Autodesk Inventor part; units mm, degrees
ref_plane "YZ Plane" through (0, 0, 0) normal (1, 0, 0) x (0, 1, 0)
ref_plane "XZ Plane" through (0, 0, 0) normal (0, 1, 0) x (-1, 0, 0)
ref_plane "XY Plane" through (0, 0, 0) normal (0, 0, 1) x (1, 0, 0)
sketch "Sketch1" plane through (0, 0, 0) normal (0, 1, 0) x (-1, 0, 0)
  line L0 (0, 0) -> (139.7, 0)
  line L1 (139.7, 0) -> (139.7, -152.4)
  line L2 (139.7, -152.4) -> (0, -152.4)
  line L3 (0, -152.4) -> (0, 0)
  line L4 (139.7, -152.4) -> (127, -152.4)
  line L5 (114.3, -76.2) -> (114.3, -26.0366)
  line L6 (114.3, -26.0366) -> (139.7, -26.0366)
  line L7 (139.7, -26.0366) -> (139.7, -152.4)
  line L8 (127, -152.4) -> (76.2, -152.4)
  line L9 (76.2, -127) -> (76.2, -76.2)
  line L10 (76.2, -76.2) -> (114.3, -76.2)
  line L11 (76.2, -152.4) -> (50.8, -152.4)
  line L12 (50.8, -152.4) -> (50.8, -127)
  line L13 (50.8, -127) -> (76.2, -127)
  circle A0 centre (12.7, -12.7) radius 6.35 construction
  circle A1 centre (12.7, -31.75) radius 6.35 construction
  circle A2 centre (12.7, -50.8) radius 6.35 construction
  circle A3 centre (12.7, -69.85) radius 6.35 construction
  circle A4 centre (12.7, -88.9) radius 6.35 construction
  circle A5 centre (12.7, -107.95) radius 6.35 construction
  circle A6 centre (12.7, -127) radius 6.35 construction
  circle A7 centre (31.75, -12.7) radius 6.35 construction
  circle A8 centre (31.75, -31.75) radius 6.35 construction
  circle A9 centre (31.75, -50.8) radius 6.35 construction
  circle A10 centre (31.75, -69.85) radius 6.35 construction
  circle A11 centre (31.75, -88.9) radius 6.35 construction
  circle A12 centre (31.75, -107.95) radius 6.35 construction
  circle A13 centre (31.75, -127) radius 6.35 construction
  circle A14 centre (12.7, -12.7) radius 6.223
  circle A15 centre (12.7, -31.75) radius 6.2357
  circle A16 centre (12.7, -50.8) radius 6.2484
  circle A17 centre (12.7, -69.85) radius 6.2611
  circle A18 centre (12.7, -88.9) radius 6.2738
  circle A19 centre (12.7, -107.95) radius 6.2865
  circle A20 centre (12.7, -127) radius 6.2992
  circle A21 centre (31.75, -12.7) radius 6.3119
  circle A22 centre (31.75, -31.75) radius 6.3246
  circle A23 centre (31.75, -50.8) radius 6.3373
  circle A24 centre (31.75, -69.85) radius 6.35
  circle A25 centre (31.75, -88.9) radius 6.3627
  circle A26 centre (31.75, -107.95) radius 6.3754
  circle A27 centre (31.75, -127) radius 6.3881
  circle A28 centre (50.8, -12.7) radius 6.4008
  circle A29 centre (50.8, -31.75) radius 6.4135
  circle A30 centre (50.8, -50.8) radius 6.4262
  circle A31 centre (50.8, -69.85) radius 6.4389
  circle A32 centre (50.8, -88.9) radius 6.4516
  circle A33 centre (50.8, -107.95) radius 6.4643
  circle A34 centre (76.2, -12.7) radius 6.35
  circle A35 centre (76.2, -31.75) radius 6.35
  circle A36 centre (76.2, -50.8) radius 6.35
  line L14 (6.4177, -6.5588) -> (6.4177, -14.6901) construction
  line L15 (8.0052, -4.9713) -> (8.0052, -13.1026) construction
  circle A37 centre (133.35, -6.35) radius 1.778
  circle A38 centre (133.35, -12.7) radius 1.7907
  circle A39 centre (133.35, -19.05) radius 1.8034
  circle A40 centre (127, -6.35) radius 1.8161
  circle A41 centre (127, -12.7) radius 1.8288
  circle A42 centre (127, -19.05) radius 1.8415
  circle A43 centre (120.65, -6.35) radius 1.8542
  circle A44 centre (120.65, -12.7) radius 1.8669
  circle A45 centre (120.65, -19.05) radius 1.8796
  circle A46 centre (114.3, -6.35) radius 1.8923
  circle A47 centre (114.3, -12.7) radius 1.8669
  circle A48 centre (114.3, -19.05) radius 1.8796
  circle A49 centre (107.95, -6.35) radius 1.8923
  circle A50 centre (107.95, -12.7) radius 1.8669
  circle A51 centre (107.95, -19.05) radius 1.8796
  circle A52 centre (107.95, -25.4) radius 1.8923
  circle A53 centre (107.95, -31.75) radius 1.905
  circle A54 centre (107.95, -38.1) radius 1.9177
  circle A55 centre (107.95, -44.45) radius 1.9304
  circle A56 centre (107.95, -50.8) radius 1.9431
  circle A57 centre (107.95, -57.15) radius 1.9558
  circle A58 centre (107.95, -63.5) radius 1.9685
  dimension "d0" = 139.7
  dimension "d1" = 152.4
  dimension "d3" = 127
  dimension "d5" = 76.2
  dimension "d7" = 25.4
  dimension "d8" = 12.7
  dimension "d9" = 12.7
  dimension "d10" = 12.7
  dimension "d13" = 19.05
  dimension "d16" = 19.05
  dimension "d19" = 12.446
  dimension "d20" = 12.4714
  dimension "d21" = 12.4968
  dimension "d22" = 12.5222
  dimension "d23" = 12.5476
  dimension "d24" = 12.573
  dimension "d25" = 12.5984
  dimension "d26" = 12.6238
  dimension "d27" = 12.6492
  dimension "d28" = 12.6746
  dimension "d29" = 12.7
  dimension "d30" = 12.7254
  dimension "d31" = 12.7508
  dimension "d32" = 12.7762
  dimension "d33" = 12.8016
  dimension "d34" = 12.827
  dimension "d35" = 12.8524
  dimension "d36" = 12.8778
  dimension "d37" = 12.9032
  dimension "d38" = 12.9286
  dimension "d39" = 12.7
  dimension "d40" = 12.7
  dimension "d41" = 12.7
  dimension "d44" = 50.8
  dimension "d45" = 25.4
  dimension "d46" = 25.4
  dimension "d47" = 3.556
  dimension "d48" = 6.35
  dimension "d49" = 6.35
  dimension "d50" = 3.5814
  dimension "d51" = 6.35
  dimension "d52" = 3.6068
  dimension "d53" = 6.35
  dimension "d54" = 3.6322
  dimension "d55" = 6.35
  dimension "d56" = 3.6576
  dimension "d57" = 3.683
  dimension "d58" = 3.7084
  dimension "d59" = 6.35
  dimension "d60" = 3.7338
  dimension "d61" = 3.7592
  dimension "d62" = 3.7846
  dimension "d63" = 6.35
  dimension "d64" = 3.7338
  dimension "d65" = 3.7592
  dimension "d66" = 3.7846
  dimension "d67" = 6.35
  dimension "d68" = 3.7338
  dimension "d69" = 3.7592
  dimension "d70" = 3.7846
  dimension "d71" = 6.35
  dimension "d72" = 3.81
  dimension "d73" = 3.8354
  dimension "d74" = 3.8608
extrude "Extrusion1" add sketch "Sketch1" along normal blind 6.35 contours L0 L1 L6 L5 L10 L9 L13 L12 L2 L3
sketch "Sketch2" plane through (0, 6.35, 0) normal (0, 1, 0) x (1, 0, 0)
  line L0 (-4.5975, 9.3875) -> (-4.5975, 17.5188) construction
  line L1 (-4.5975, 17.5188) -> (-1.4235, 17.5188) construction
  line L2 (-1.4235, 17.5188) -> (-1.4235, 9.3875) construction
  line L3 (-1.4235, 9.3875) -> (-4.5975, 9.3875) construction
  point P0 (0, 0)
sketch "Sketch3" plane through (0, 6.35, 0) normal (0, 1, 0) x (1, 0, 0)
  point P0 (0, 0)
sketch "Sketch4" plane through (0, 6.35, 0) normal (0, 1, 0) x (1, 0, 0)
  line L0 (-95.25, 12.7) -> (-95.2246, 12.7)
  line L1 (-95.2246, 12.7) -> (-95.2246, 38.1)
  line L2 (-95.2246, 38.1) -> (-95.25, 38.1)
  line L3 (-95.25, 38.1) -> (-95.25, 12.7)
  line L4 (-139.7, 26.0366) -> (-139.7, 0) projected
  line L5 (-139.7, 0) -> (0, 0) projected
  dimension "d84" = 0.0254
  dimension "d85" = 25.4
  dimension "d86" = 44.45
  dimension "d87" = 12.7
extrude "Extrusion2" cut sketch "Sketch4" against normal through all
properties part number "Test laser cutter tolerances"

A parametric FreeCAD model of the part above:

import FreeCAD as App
import Part
import Sketcher
Q = App.Units.Quantity

doc = App.newDocument("Part")
body = doc.addObject("PartDesign::Body", "Body")

sketch1 = doc.addObject("Sketcher::SketchObject", "Sketch")
body.addObject(sketch1)
sketch1.AttachmentSupport = (doc.XZ_Plane, [""])
sketch1.MapMode = "FlatFace"
sketch1.addGeometry(Part.LineSegment(App.Vector(-139.7, 0, 0), App.Vector(0, 0, 0)), False)
sketch1.addGeometry(Part.LineSegment(App.Vector(0, 0, 0), App.Vector(0, -152.4, 0)), False)
sketch1.addGeometry(Part.LineSegment(App.Vector(0, -152.4, 0), App.Vector(-50.8, -152.4, 0)), False)
sketch1.addGeometry(Part.LineSegment(App.Vector(-50.8, -152.4, 0), App.Vector(-50.8, -127, 0)), False)
sketch1.addGeometry(Part.LineSegment(App.Vector(-50.8, -127, 0), App.Vector(-76.2, -127, 0)), False)
sketch1.addGeometry(Part.LineSegment(App.Vector(-76.2, -127, 0), App.Vector(-76.2, -76.2, 0)), False)
sketch1.addGeometry(Part.LineSegment(App.Vector(-76.2, -76.2, 0), App.Vector(-114.3, -76.2, 0)), False)
sketch1.addGeometry(Part.LineSegment(App.Vector(-114.3, -76.2, 0), App.Vector(-114.3, -26, 0)), False)
sketch1.addGeometry(Part.LineSegment(App.Vector(-114.3, -26, 0), App.Vector(-139.7, -26, 0)), False)
sketch1.addGeometry(Part.LineSegment(App.Vector(-139.7, -26, 0), App.Vector(-139.7, 0, 0)), False)
sketch1.addGeometry(Part.Circle(App.Vector(-12.7, -127, 0), App.Vector(0, 0, 1), 6.3), False)
sketch1.addGeometry(Part.Circle(App.Vector(-31.8, -127, 0), App.Vector(0, 0, 1), 6.4), False)
sketch1.addGeometry(Part.Circle(App.Vector(-12.7, -108, 0), App.Vector(0, 0, 1), 6.3), False)
sketch1.addGeometry(Part.Circle(App.Vector(-31.8, -108, 0), App.Vector(0, 0, 1), 6.4), False)
sketch1.addGeometry(Part.Circle(App.Vector(-12.7, -88.9, 0), App.Vector(0, 0, 1), 6.3), False)
sketch1.addGeometry(Part.Circle(App.Vector(-31.8, -88.9, 0), App.Vector(0, 0, 1), 6.4), False)
sketch1.addGeometry(Part.Circle(App.Vector(-50.8, -108, 0), App.Vector(0, 0, 1), 6.5), False)
sketch1.addGeometry(Part.Circle(App.Vector(-50.8, -88.9, 0), App.Vector(0, 0, 1), 6.5), False)
sketch1.addGeometry(Part.Circle(App.Vector(-12.7, -69.8, 0), App.Vector(0, 0, 1), 6.3), False)
sketch1.addGeometry(Part.Circle(App.Vector(-31.8, -69.8, 0), App.Vector(0, 0, 1), 6.3), False)
sketch1.addGeometry(Part.Circle(App.Vector(-12.7, -50.8, 0), App.Vector(0, 0, 1), 6.2), False)
sketch1.addGeometry(Part.Circle(App.Vector(-31.8, -50.8, 0), App.Vector(0, 0, 1), 6.3), False)
sketch1.addGeometry(Part.Circle(App.Vector(-50.8, -69.8, 0), App.Vector(0, 0, 1), 6.4), False)
sketch1.addGeometry(Part.Circle(App.Vector(-50.8, -50.8, 0), App.Vector(0, 0, 1), 6.4), False)
sketch1.addGeometry(Part.Circle(App.Vector(-12.7, -31.8, 0), App.Vector(0, 0, 1), 6.2), False)
sketch1.addGeometry(Part.Circle(App.Vector(-31.8, -31.8, 0), App.Vector(0, 0, 1), 6.3), False)
sketch1.addGeometry(Part.Circle(App.Vector(-12.7, -12.7, 0), App.Vector(0, 0, 1), 6.2), False)
sketch1.addGeometry(Part.Circle(App.Vector(-31.8, -12.7, 0), App.Vector(0, 0, 1), 6.3), False)
sketch1.addGeometry(Part.Circle(App.Vector(-50.8, -31.8, 0), App.Vector(0, 0, 1), 6.4), False)
sketch1.addGeometry(Part.Circle(App.Vector(-50.8, -12.7, 0), App.Vector(0, 0, 1), 6.4), False)
sketch1.addGeometry(Part.Circle(App.Vector(-76.2, -50.8, 0), App.Vector(0, 0, 1), 6.3), False)
sketch1.addGeometry(Part.Circle(App.Vector(-108, -63.5, 0), App.Vector(0, 0, 1), 2), False)
sketch1.addGeometry(Part.Circle(App.Vector(-108, -57.1, 0), App.Vector(0, 0, 1), 2), False)
sketch1.addGeometry(Part.Circle(App.Vector(-108, -50.8, 0), App.Vector(0, 0, 1), 1.9), False)
sketch1.addGeometry(Part.Circle(App.Vector(-108, -44.5, 0), App.Vector(0, 0, 1), 1.9), False)
sketch1.addGeometry(Part.Circle(App.Vector(-76.2, -31.8, 0), App.Vector(0, 0, 1), 6.3), False)
sketch1.addGeometry(Part.Circle(App.Vector(-76.2, -12.7, 0), App.Vector(0, 0, 1), 6.3), False)
sketch1.addGeometry(Part.Circle(App.Vector(-108, -38.1, 0), App.Vector(0, 0, 1), 1.9), False)
sketch1.addGeometry(Part.Circle(App.Vector(-108, -31.8, 0), App.Vector(0, 0, 1), 1.9), False)
sketch1.addGeometry(Part.Circle(App.Vector(-108, -25.4, 0), App.Vector(0, 0, 1), 1.9), False)
sketch1.addGeometry(Part.Circle(App.Vector(-108, -19.1, 0), App.Vector(0, 0, 1), 1.9), False)
sketch1.addGeometry(Part.Circle(App.Vector(-108, -12.7, 0), App.Vector(0, 0, 1), 1.9), False)
sketch1.addGeometry(Part.Circle(App.Vector(-114.3, -19.1, 0), App.Vector(0, 0, 1), 1.9), False)
sketch1.addGeometry(Part.Circle(App.Vector(-120.7, -19.1, 0), App.Vector(0, 0, 1), 1.9), False)
sketch1.addGeometry(Part.Circle(App.Vector(-114.3, -12.7, 0), App.Vector(0, 0, 1), 1.9), False)
sketch1.addGeometry(Part.Circle(App.Vector(-120.7, -12.7, 0), App.Vector(0, 0, 1), 1.9), False)
sketch1.addGeometry(Part.Circle(App.Vector(-108, -6.3, 0), App.Vector(0, 0, 1), 1.9), False)
sketch1.addGeometry(Part.Circle(App.Vector(-114.3, -6.3, 0), App.Vector(0, 0, 1), 1.9), False)
sketch1.addGeometry(Part.Circle(App.Vector(-120.7, -6.3, 0), App.Vector(0, 0, 1), 1.9), False)
sketch1.addGeometry(Part.Circle(App.Vector(-127, -19.1, 0), App.Vector(0, 0, 1), 1.8), False)
sketch1.addGeometry(Part.Circle(App.Vector(-127, -12.7, 0), App.Vector(0, 0, 1), 1.8), False)
sketch1.addGeometry(Part.Circle(App.Vector(-133.3, -19.1, 0), App.Vector(0, 0, 1), 1.8), False)
sketch1.addGeometry(Part.Circle(App.Vector(-133.3, -12.7, 0), App.Vector(0, 0, 1), 1.8), False)
sketch1.addGeometry(Part.Circle(App.Vector(-127, -6.3, 0), App.Vector(0, 0, 1), 1.8), False)
sketch1.addGeometry(Part.Circle(App.Vector(-133.3, -6.3, 0), App.Vector(0, 0, 1), 1.8), False)
sketch1.addConstraint(Sketcher.Constraint("Coincident", 0, 2, 1, 1))
sketch1.addConstraint(Sketcher.Constraint("Coincident", 1, 2, 2, 1))
sketch1.addConstraint(Sketcher.Constraint("Coincident", 2, 2, 3, 1))
sketch1.addConstraint(Sketcher.Constraint("Coincident", 3, 2, 4, 1))
sketch1.addConstraint(Sketcher.Constraint("Coincident", 4, 2, 5, 1))
sketch1.addConstraint(Sketcher.Constraint("Coincident", 5, 2, 6, 1))
sketch1.addConstraint(Sketcher.Constraint("Coincident", 6, 2, 7, 1))
sketch1.addConstraint(Sketcher.Constraint("Coincident", 7, 2, 8, 1))
sketch1.addConstraint(Sketcher.Constraint("Coincident", 8, 2, 9, 1))
sketch1.addConstraint(Sketcher.Constraint("Coincident", 9, 2, 0, 1))
sketch1.addConstraint(Sketcher.Constraint("Horizontal", 0))
sketch1.addConstraint(Sketcher.Constraint("Vertical", 1))
sketch1.addConstraint(Sketcher.Constraint("Horizontal", 2))
sketch1.addConstraint(Sketcher.Constraint("Vertical", 3))
sketch1.addConstraint(Sketcher.Constraint("Horizontal", 4))
sketch1.addConstraint(Sketcher.Constraint("Vertical", 5))
sketch1.addConstraint(Sketcher.Constraint("Horizontal", 6))
sketch1.addConstraint(Sketcher.Constraint("Vertical", 7))
sketch1.addConstraint(Sketcher.Constraint("Horizontal", 8))
sketch1.addConstraint(Sketcher.Constraint("Vertical", 9))
sketch1.addConstraint(Sketcher.Constraint("Coincident", 0, 2, -1, 1))
sketch1.addConstraint(Sketcher.Constraint("Equal", 19, 30))
sketch1.addConstraint(Sketcher.Constraint("Equal", 30, 35))
sketch1.addConstraint(Sketcher.Constraint("Equal", 35, 36))
sketch1.addConstraint(Sketcher.Constraint("Equal", 40, 42))
sketch1.addConstraint(Sketcher.Constraint("Equal", 42, 43))
sketch1.addConstraint(Sketcher.Constraint("Equal", 41, 44))
sketch1.addConstraint(Sketcher.Constraint("Equal", 44, 45))
sketch1.addConstraint(Sketcher.Constraint("Equal", 39, 46))
sketch1.addConstraint(Sketcher.Constraint("Equal", 46, 47))
sketch1.addConstraint(Sketcher.Constraint("Horizontal", 10, 3, 11, 3))
sketch1.addConstraint(Sketcher.Constraint("Horizontal", 12, 3, 13, 3))
sketch1.addConstraint(Sketcher.Constraint("Horizontal", 14, 3, 15, 3))
sketch1.addConstraint(Sketcher.Constraint("Horizontal", 13, 3, 16, 3))
sketch1.addConstraint(Sketcher.Constraint("Horizontal", 15, 3, 17, 3))
sketch1.addConstraint(Sketcher.Constraint("Horizontal", 18, 3, 19, 3))
sketch1.addConstraint(Sketcher.Constraint("Horizontal", 20, 3, 21, 3))
sketch1.addConstraint(Sketcher.Constraint("Horizontal", 19, 3, 22, 3))
sketch1.addConstraint(Sketcher.Constraint("Horizontal", 21, 3, 23, 3))
sketch1.addConstraint(Sketcher.Constraint("Horizontal", 24, 3, 25, 3))
sketch1.addConstraint(Sketcher.Constraint("Horizontal", 26, 3, 27, 3))
sketch1.addConstraint(Sketcher.Constraint("Horizontal", 25, 3, 28, 3))
sketch1.addConstraint(Sketcher.Constraint("Horizontal", 27, 3, 29, 3))
sketch1.addConstraint(Sketcher.Constraint("Horizontal", 23, 3, 30, 3))
sketch1.addConstraint(Sketcher.Constraint("Horizontal", 30, 3, 33, 3))
sketch1.addConstraint(Sketcher.Constraint("Horizontal", 28, 3, 35, 3))
sketch1.addConstraint(Sketcher.Constraint("Horizontal", 29, 3, 36, 3))
sketch1.addConstraint(Sketcher.Constraint("Horizontal", 35, 3, 38, 3))
sketch1.addConstraint(Sketcher.Constraint("Horizontal", 36, 3, 41, 3))
sketch1.addConstraint(Sketcher.Constraint("Horizontal", 40, 3, 42, 3))
sketch1.addConstraint(Sketcher.Constraint("Horizontal", 42, 3, 43, 3))
sketch1.addConstraint(Sketcher.Constraint("Horizontal", 41, 3, 44, 3))
sketch1.addConstraint(Sketcher.Constraint("Horizontal", 44, 3, 45, 3))
sketch1.addConstraint(Sketcher.Constraint("Horizontal", 46, 3, 47, 3))
sketch1.addConstraint(Sketcher.Constraint("Horizontal", 47, 3, 48, 3))
sketch1.addConstraint(Sketcher.Constraint("Horizontal", 43, 3, 49, 3))
sketch1.addConstraint(Sketcher.Constraint("Horizontal", 45, 3, 50, 3))
sketch1.addConstraint(Sketcher.Constraint("Horizontal", 49, 3, 51, 3))
sketch1.addConstraint(Sketcher.Constraint("Horizontal", 50, 3, 52, 3))
sketch1.addConstraint(Sketcher.Constraint("Horizontal", 48, 3, 53, 3))
sketch1.addConstraint(Sketcher.Constraint("Horizontal", 53, 3, 54, 3))
sketch1.addConstraint(Sketcher.Constraint("Horizontal", 11, 3, 3, 2))
sketch1.addConstraint(Sketcher.Constraint("Vertical", 10, 3, 12, 3))
sketch1.addConstraint(Sketcher.Constraint("Vertical", 11, 3, 13, 3))
sketch1.addConstraint(Sketcher.Constraint("Vertical", 12, 3, 14, 3))
sketch1.addConstraint(Sketcher.Constraint("Vertical", 13, 3, 15, 3))
sketch1.addConstraint(Sketcher.Constraint("Vertical", 16, 3, 17, 3))
sketch1.addConstraint(Sketcher.Constraint("Vertical", 14, 3, 18, 3))
sketch1.addConstraint(Sketcher.Constraint("Vertical", 15, 3, 19, 3))
sketch1.addConstraint(Sketcher.Constraint("Vertical", 18, 3, 20, 3))
sketch1.addConstraint(Sketcher.Constraint("Vertical", 19, 3, 21, 3))
sketch1.addConstraint(Sketcher.Constraint("Vertical", 17, 3, 22, 3))
sketch1.addConstraint(Sketcher.Constraint("Vertical", 22, 3, 23, 3))
sketch1.addConstraint(Sketcher.Constraint("Vertical", 20, 3, 24, 3))
sketch1.addConstraint(Sketcher.Constraint("Vertical", 21, 3, 25, 3))
sketch1.addConstraint(Sketcher.Constraint("Vertical", 24, 3, 26, 3))
sketch1.addConstraint(Sketcher.Constraint("Vertical", 25, 3, 27, 3))
sketch1.addConstraint(Sketcher.Constraint("Vertical", 23, 3, 28, 3))
sketch1.addConstraint(Sketcher.Constraint("Vertical", 28, 3, 29, 3))
sketch1.addConstraint(Sketcher.Constraint("Vertical", 31, 3, 32, 3))
sketch1.addConstraint(Sketcher.Constraint("Vertical", 32, 3, 33, 3))
sketch1.addConstraint(Sketcher.Constraint("Vertical", 33, 3, 34, 3))
sketch1.addConstraint(Sketcher.Constraint("Vertical", 30, 3, 35, 3))
sketch1.addConstraint(Sketcher.Constraint("Vertical", 35, 3, 36, 3))
sketch1.addConstraint(Sketcher.Constraint("Vertical", 34, 3, 37, 3))
sketch1.addConstraint(Sketcher.Constraint("Vertical", 37, 3, 38, 3))
sketch1.addConstraint(Sketcher.Constraint("Vertical", 38, 3, 39, 3))
sketch1.addConstraint(Sketcher.Constraint("Vertical", 39, 3, 40, 3))
sketch1.addConstraint(Sketcher.Constraint("Vertical", 40, 3, 41, 3))
sketch1.addConstraint(Sketcher.Constraint("Vertical", 42, 3, 44, 3))
sketch1.addConstraint(Sketcher.Constraint("Vertical", 43, 3, 45, 3))
sketch1.addConstraint(Sketcher.Constraint("Vertical", 41, 3, 46, 3))
sketch1.addConstraint(Sketcher.Constraint("Vertical", 44, 3, 47, 3))
sketch1.addConstraint(Sketcher.Constraint("Vertical", 45, 3, 48, 3))
sketch1.addConstraint(Sketcher.Constraint("Vertical", 49, 3, 50, 3))
sketch1.addConstraint(Sketcher.Constraint("Vertical", 51, 3, 52, 3))
sketch1.addConstraint(Sketcher.Constraint("Vertical", 50, 3, 53, 3))
sketch1.addConstraint(Sketcher.Constraint("Vertical", 52, 3, 54, 3))
sketch1.addConstraint(Sketcher.Constraint("Vertical", 29, 3, 2, 2))
sketch1.addConstraint(Sketcher.Constraint("Vertical", 36, 3, 4, 2))
sketch1.addConstraint(Sketcher.Constraint("Vertical", 47, 3, 6, 2))
sketch1.addConstraint(Sketcher.Constraint("Equal", 4, 8))
sketch1.addConstraint(Sketcher.Constraint("Equal", 8, 3))
sketch1.addConstraint(Sketcher.Constraint("Equal", 2, 5))
sketch1.addConstraint(Sketcher.Constraint("Diameter", 19, Q("0.5 in")))
sketch1.addConstraint(Sketcher.Constraint("Diameter", 26, Q("0.49 in")))
sketch1.addConstraint(Sketcher.Constraint("Diameter", 38, Q("0.15 in")))
sketch1.addConstraint(Sketcher.Constraint("Diameter", 54, Q("0.14 in")))
sketch1.addConstraint(Sketcher.Constraint("DistanceX", 2, 2, 2, 1, Q("2 in")))
sketch1.addConstraint(Sketcher.Constraint("DistanceX", 4, 2, 4, 1, Q("1 in")))
sketch1.addConstraint(Sketcher.Constraint("DistanceY", 1, 2, 1, 1, Q("6 in")))
sketch1.addConstraint(Sketcher.Constraint("Diameter", 10, Q("0.496 in")))
sketch1.addConstraint(Sketcher.Constraint("Diameter", 11, Q("0.503 in")))
sketch1.addConstraint(Sketcher.Constraint("Diameter", 12, Q("0.495 in")))
sketch1.addConstraint(Sketcher.Constraint("Diameter", 13, Q("0.502 in")))
sketch1.addConstraint(Sketcher.Constraint("Diameter", 14, Q("0.494 in")))
sketch1.addConstraint(Sketcher.Constraint("Diameter", 15, Q("0.501 in")))
sketch1.addConstraint(Sketcher.Constraint("Diameter", 16, Q("0.509 in")))
sketch1.addConstraint(Sketcher.Constraint("Diameter", 17, Q("0.508 in")))
sketch1.addConstraint(Sketcher.Constraint("Diameter", 18, Q("0.493 in")))
sketch1.addConstraint(Sketcher.Constraint("Diameter", 20, Q("0.492 in")))
sketch1.addConstraint(Sketcher.Constraint("Diameter", 21, Q("0.499 in")))
sketch1.addConstraint(Sketcher.Constraint("Diameter", 22, Q("0.507 in")))
sketch1.addConstraint(Sketcher.Constraint("Diameter", 23, Q("0.506 in")))
sketch1.addConstraint(Sketcher.Constraint("Diameter", 24, Q("0.491 in")))
sketch1.addConstraint(Sketcher.Constraint("Diameter", 25, Q("0.498 in")))
sketch1.addConstraint(Sketcher.Constraint("Diameter", 27, Q("0.497 in")))
sketch1.addConstraint(Sketcher.Constraint("Diameter", 28, Q("0.505 in")))
sketch1.addConstraint(Sketcher.Constraint("Diameter", 29, Q("0.504 in")))
sketch1.addConstraint(Sketcher.Constraint("Diameter", 34, Q("0.152 in")))
sketch1.addConstraint(Sketcher.Constraint("Diameter", 37, Q("0.151 in")))
sketch1.addConstraint(Sketcher.Constraint("Diameter", 39, Q("0.149 in")))
sketch1.addConstraint(Sketcher.Constraint("Diameter", 40, Q("0.148 in")))
sketch1.addConstraint(Sketcher.Constraint("Diameter", 41, Q("0.147 in")))
sketch1.addConstraint(Sketcher.Constraint("Diameter", 48, Q("0.146 in")))
sketch1.addConstraint(Sketcher.Constraint("Diameter", 49, Q("0.145 in")))
sketch1.addConstraint(Sketcher.Constraint("Diameter", 50, Q("0.144 in")))
sketch1.addConstraint(Sketcher.Constraint("Diameter", 51, Q("0.142 in")))
sketch1.addConstraint(Sketcher.Constraint("Diameter", 52, Q("0.141 in")))
sketch1.addConstraint(Sketcher.Constraint("Diameter", 53, Q("0.143 in")))
sketch1.addConstraint(Sketcher.Constraint("DistanceX", 0, 1, 0, 2, Q("5.5 in")))
sketch1.addConstraint(Sketcher.Constraint("DistanceY", 20, 3, -1, 1, Q("2 in")))
sketch1.addConstraint(Sketcher.Constraint("DistanceY", 39, 3, -1, 1, Q("1 in")))
sketch1.addConstraint(Sketcher.Constraint("DistanceX", 49, 3, -1, 1, Q("5 in")))
sketch1.addConstraint(Sketcher.Constraint("DistanceY", 17, 3, 31, 3, Q("1 in")))
sketch1.addConstraint(Sketcher.Constraint("DistanceY", 32, 3, 28, 3, Q("1 in")))
sketch1.addConstraint(Sketcher.Constraint("DistanceY", 31, 3, 37, 3, Q("1 in")))
sketch1.addConstraint(Sketcher.Constraint("DistanceY", 34, 3, 40, 3, Q("1 in")))
sketch1.addConstraint(Sketcher.Constraint("DistanceY", 37, 3, 41, 3, Q("1 in")))
sketch1.addConstraint(Sketcher.Constraint("DistanceX", 10, 3, -1, 1, Q("0.5 in")))
sketch1.addConstraint(Sketcher.Constraint("DistanceY", 26, 3, -1, 1, Q("0.5 in")))
sketch1.addConstraint(Sketcher.Constraint("DistanceY", 22, 3, 32, 3, Q("0.5 in")))
sketch1.addConstraint(Sketcher.Constraint("DistanceY", 32, 3, 34, 3, Q("0.5 in")))
sketch1.addConstraint(Sketcher.Constraint("DistanceX", 43, 3, 40, 3, Q("0.5 in")))
sketch1.addConstraint(Sketcher.Constraint("DistanceY", 40, 3, 46, 3, Q("0.5 in")))
sketch1.addConstraint(Sketcher.Constraint("DistanceX", 51, 3, 43, 3, Q("0.5 in")))
sketch1.addConstraint(Sketcher.Constraint("DistanceY", 40, 3, -1, 1, Q("0.75 in")))
sketch1.addConstraint(Sketcher.Constraint("DistanceX", 11, 3, 10, 3, Q("0.75 in")))
sketch1.addConstraint(Sketcher.Constraint("DistanceY", 10, 3, 12, 3, Q("0.75 in")))
sketch1.addConstraint(Sketcher.Constraint("DistanceX", 42, 3, 40, 3, Q("0.25 in")))
sketch1.addConstraint(Sketcher.Constraint("Diameter", 31, Q("0.155 in")))
sketch1.addConstraint(Sketcher.Constraint("Diameter", 32, Q("0.154 in")))
sketch1.addConstraint(Sketcher.Constraint("Diameter", 33, Q("0.153 in")))
sketch1.addConstraint(Sketcher.Constraint("DistanceY", 7, 1, 7, 2, Q("50.1634 mm")))
pad1 = doc.addObject("PartDesign::Pad", "Pad")
body.addObject(pad1)
pad1.Profile = sketch1
pad1.Length = Q("0.25 in")
pad1.Reversed = True

sketch2 = doc.addObject("Sketcher::SketchObject", "Sketch001")
body.addObject(sketch2)
sketch2.AttachmentSupport = (doc.XZ_Plane, [""])
sketch2.MapMode = "FlatFace"
sketch2.AttachmentOffset = App.Placement(App.Vector(0, 0, -0.25 * 25.4), App.Rotation())
sketch2.addGeometry(Part.LineSegment(App.Vector(-95.25, -38.1, 0), App.Vector(-95.25, -12.7, 0)), False)
sketch2.addGeometry(Part.LineSegment(App.Vector(-95.25, -12.7, 0), App.Vector(-95.225, -12.7, 0)), False)
sketch2.addGeometry(Part.LineSegment(App.Vector(-95.225, -12.7, 0), App.Vector(-95.225, -38.1, 0)), False)
sketch2.addGeometry(Part.LineSegment(App.Vector(-95.225, -38.1, 0), App.Vector(-95.25, -38.1, 0)), False)
sketch2.addConstraint(Sketcher.Constraint("Coincident", 0, 2, 1, 1))
sketch2.addConstraint(Sketcher.Constraint("Coincident", 1, 2, 2, 1))
sketch2.addConstraint(Sketcher.Constraint("Coincident", 2, 2, 3, 1))
sketch2.addConstraint(Sketcher.Constraint("Coincident", 3, 2, 0, 1))
sketch2.addConstraint(Sketcher.Constraint("Vertical", 0))
sketch2.addConstraint(Sketcher.Constraint("Horizontal", 1))
sketch2.addConstraint(Sketcher.Constraint("Vertical", 2))
sketch2.addConstraint(Sketcher.Constraint("Horizontal", 3))
sketch2.addConstraint(Sketcher.Constraint("DistanceY", 0, 1, 0, 2, Q("1 in")))
sketch2.addConstraint(Sketcher.Constraint("DistanceY", 0, 2, -1, 1, Q("0.5 in")))
sketch2.addConstraint(Sketcher.Constraint("DistanceX", 1, 1, 1, 2, Q("0.001 in")))
sketch2.addConstraint(Sketcher.Constraint("DistanceX", 0, 2, -1, 1, Q("3.75 in")))
pocket1 = doc.addObject("PartDesign::Pocket", "Pocket")
body.addObject(pocket1)
pocket1.Profile = sketch2
pocket1.Type = "ThroughAll"
pocket1.Reversed = True

doc.recompute()
